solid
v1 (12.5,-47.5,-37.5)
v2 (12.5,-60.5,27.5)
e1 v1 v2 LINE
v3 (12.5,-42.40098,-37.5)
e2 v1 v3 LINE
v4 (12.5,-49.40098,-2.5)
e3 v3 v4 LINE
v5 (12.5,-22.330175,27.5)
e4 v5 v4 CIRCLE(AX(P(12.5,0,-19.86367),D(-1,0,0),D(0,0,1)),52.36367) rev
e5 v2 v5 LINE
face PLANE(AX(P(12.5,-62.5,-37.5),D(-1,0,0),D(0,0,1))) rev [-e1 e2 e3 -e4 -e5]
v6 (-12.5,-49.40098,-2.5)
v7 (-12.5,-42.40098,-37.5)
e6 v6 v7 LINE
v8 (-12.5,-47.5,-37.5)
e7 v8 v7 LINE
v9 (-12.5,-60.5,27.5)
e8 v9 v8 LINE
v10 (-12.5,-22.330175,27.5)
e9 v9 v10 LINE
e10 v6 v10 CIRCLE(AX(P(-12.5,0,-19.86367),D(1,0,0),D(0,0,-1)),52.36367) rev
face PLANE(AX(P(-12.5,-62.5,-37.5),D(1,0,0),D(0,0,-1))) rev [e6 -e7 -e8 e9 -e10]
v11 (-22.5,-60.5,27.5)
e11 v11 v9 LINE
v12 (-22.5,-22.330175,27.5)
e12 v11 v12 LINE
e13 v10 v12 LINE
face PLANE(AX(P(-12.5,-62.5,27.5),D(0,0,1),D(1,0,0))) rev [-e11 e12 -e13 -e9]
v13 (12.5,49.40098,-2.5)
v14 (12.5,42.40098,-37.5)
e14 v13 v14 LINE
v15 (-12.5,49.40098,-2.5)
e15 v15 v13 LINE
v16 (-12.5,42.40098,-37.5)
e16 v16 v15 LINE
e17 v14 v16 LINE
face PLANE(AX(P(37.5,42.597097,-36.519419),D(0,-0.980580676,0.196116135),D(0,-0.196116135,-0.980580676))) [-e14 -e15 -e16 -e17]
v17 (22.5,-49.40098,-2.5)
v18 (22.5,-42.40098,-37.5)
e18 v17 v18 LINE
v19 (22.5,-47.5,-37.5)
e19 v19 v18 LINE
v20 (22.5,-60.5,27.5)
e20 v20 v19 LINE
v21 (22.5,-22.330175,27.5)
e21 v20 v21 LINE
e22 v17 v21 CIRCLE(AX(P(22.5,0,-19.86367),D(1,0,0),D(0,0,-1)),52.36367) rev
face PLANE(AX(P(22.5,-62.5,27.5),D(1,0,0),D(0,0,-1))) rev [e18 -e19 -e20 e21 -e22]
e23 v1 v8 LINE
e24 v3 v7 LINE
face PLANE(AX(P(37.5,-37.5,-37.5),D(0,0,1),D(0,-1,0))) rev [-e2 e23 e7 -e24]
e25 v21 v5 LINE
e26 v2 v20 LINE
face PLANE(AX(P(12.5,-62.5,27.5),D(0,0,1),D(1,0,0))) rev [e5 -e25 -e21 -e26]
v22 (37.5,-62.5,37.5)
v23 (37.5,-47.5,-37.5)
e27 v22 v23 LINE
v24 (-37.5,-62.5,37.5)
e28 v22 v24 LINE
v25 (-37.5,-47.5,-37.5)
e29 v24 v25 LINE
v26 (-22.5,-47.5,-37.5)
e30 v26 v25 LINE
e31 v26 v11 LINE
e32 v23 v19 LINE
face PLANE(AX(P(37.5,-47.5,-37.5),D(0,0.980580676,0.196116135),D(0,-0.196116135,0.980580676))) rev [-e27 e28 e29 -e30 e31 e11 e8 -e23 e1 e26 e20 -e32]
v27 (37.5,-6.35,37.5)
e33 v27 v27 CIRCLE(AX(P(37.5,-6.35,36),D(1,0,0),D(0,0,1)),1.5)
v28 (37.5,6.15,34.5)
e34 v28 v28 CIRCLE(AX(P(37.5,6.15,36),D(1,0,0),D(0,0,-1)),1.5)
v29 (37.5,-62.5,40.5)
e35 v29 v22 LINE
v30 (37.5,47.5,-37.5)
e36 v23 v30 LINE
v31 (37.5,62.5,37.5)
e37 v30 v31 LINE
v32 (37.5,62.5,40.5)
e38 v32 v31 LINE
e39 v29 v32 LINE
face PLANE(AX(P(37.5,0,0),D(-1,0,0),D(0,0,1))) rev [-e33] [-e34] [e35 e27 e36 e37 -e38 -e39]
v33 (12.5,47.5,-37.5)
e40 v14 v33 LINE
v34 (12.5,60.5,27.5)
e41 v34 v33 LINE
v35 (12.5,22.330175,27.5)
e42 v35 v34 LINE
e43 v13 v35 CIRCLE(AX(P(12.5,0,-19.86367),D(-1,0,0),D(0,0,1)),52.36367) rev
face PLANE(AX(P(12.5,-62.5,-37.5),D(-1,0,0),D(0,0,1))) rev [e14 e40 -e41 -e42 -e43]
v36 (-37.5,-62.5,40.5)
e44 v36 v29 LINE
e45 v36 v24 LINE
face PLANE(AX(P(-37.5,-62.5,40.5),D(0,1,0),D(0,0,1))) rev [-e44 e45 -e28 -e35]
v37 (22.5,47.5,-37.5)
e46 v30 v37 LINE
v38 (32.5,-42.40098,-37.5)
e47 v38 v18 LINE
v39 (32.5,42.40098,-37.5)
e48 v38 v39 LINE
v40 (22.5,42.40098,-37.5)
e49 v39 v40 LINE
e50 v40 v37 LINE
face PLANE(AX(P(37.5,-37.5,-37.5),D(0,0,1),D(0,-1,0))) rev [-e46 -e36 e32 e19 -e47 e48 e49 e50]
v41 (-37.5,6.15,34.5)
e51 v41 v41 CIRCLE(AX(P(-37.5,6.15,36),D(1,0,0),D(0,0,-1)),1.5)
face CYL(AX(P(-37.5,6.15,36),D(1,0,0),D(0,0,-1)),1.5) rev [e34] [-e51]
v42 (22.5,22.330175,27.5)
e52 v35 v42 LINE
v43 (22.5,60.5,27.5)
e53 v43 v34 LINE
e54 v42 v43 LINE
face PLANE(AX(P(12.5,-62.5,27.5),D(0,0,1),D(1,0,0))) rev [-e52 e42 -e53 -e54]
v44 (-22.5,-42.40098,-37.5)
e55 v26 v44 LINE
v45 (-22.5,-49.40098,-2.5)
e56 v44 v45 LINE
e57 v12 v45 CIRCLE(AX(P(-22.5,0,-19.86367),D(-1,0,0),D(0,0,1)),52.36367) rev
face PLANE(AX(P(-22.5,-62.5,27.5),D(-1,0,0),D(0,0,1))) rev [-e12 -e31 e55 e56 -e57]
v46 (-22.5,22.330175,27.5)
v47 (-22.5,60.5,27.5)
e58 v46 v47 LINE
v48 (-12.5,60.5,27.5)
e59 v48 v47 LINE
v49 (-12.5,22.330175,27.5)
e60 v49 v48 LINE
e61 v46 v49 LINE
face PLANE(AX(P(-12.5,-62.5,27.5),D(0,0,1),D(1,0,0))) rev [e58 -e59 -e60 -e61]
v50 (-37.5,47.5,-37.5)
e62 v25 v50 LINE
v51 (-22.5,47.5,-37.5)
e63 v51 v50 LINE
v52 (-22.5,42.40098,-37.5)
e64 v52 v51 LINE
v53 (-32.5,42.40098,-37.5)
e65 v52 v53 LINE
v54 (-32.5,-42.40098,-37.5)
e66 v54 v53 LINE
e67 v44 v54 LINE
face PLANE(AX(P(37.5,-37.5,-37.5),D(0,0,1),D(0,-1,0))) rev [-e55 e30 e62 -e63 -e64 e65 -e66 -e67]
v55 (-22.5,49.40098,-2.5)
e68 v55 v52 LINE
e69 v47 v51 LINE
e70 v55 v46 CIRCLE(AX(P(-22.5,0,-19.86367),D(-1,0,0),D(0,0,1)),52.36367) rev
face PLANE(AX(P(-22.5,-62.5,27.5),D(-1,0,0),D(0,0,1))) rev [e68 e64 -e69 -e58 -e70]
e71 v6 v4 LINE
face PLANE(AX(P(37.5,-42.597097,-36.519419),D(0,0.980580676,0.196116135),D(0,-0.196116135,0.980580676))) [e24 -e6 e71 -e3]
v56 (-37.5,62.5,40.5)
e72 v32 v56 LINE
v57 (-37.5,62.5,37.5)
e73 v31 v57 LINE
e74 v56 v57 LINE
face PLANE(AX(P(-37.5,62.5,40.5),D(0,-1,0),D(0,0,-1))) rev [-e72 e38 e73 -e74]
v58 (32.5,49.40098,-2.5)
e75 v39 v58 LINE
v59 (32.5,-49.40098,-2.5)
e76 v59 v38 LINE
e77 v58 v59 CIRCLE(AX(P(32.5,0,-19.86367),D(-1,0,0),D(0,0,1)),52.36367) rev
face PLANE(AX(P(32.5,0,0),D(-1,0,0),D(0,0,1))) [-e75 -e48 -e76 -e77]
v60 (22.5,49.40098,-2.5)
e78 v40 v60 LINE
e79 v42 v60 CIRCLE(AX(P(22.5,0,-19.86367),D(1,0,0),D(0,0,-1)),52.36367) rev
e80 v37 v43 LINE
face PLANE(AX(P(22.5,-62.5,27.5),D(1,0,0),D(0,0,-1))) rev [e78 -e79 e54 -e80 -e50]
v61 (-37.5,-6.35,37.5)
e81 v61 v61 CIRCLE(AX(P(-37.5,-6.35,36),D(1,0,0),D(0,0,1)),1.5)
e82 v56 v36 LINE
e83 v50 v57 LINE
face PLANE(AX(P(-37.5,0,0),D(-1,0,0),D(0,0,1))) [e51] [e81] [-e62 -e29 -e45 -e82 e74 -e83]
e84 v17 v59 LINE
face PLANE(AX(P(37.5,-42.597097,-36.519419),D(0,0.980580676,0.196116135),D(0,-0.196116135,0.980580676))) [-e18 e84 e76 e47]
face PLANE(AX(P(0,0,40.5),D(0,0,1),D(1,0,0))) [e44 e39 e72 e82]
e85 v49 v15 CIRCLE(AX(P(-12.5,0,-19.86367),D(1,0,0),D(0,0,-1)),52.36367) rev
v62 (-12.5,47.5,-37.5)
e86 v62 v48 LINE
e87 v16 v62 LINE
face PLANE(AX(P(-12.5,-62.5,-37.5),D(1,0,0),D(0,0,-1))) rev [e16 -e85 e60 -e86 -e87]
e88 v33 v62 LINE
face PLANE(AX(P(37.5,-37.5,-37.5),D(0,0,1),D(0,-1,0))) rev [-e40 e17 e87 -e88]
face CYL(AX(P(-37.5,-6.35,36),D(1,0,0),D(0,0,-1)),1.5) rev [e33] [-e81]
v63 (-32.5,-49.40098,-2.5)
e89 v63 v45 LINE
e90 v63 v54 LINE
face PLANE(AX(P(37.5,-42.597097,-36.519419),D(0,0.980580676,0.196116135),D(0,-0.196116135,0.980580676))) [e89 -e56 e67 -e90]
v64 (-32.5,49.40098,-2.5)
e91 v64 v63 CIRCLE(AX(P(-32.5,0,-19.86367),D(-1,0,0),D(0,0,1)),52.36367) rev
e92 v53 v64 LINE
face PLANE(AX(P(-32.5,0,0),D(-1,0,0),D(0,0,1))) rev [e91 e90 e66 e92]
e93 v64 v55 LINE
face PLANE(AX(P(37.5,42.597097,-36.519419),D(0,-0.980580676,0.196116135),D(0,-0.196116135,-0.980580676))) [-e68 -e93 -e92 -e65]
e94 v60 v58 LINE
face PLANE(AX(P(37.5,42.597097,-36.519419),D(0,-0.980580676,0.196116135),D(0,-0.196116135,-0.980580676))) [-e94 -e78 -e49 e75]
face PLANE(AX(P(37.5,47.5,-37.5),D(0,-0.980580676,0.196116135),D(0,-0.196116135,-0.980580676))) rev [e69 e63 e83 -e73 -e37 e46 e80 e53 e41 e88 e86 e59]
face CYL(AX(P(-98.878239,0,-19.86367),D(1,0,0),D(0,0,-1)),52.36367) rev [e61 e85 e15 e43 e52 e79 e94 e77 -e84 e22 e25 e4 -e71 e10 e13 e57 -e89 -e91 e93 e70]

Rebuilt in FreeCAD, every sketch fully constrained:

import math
import FreeCAD as App
import Part
import Sketcher
from FreeCAD import Vector
Q = App.Units.Quantity


def faces_at(feature, points):
    """Names of the faces that lie closest to the given points."""
    faces = feature.Shape.Faces
    near = lambda p: min(range(len(faces)), key=lambda i: faces[i].distToShape(Part.Vertex(*p))[0])
    return sorted({f"Face{near(p) + 1}" for p in points})

doc = App.newDocument("Part")
body = doc.addObject("PartDesign::Body", "Body")

sketch1 = body.newObject("Sketcher::SketchObject", "Sketch")
sketch1.AttachmentSupport = (doc.getObject("YZ_Plane"), [""])
sketch1.MapMode = "FlatFace"
sketch1.addGeometry(Part.LineSegment(Vector(-62, 38, 0), Vector(-48, -38, 0)), False)
sketch1.addGeometry(Part.LineSegment(Vector(-48, -38, 0), Vector(48, -38, 0)), False)
sketch1.addGeometry(Part.LineSegment(Vector(48, -38, 0), Vector(62, 38, 0)), False)
sketch1.addGeometry(Part.LineSegment(Vector(62, 38, 0), Vector(-62, 38, 0)), False)
sketch1.addConstraint(Sketcher.Constraint("Coincident", 0, 2, 1, 1))
sketch1.addConstraint(Sketcher.Constraint("Coincident", 1, 2, 2, 1))
sketch1.addConstraint(Sketcher.Constraint("Coincident", 2, 2, 3, 1))
sketch1.addConstraint(Sketcher.Constraint("Coincident", 3, 2, 0, 1))
sketch1.addConstraint(Sketcher.Constraint("Horizontal", 1))
sketch1.addConstraint(Sketcher.Constraint("Horizontal", 3))
sketch1.addConstraint(Sketcher.Constraint("Equal", 0, 2))
sketch1.addConstraint(Sketcher.Constraint("DistanceX", 1, 1, 1, 2, Q("95 mm")))
sketch1.addConstraint(Sketcher.Constraint("DistanceX", 3, 2, 3, 1, Q("125 mm")))
sketch1.addConstraint(Sketcher.Constraint("DistanceY", 1, 2, 2, 2, Q("75 mm")))
sketch1.addConstraint(Sketcher.Constraint("DistanceX", 0, 2, -1, 1, Q("47.5 mm")))
sketch1.addConstraint(Sketcher.Constraint("DistanceY", 0, 2, -1, 1, Q("37.5 mm")))
pad1 = body.newObject("PartDesign::Pad", "Pad")
pad1.Profile = sketch1
pad1.Length = 75
pad1.Midplane = True
doc.recompute()

thickness = body.newObject("PartDesign::Thickness", "Thickness")
thickness.Base = (pad1, faces_at(pad1, [(0, 0, -37.5)]))
thickness.Value = 5
thickness.Reversed = True
thickness.Join = "Intersection"

sketch2 = body.newObject("Sketcher::SketchObject", "Sketch001")
sketch2.AttachmentSupport = (doc.getObject("YZ_Plane"), [""])
sketch2.MapMode = "FlatFace"
sketch2.AttachmentOffset = App.Placement(Vector(0, 0, 32.5), App.Rotation())
sketch2.addGeometry(Part.LineSegment(Vector(-49, -2, 0), Vector(-56, 32, 0)), False)
sketch2.addGeometry(Part.LineSegment(Vector(-56, 32, 0), Vector(0, 32, 0)), False)
sketch2.addGeometry(Part.ArcOfCircle(Part.Circle(Vector(0, -20, 0), Vector(0, 0, 1), 52), math.radians(90), math.radians(161)), False)
sketch2.addGeometry(Part.ArcOfCircle(Part.Circle(Vector(0, -20, 0), Vector(0, 0, 1), 52), math.radians(19), math.radians(90)), False)
sketch2.addGeometry(Part.LineSegment(Vector(0, 32, 0), Vector(56, 32, 0)), False)
sketch2.addGeometry(Part.LineSegment(Vector(56, 32, 0), Vector(49, -2, 0)), False)
sketch2.addConstraint(Sketcher.Constraint("Coincident", 0, 2, 1, 1))
sketch2.addConstraint(Sketcher.Constraint("Tangent", 1, 2, 2, 1))
sketch2.addConstraint(Sketcher.Constraint("Coincident", 2, 2, 0, 1))
sketch2.addConstraint(Sketcher.Constraint("Tangent", 3, 2, 4, 1))
sketch2.addConstraint(Sketcher.Constraint("Coincident", 4, 2, 5, 1))
sketch2.addConstraint(Sketcher.Constraint("Coincident", 5, 2, 3, 1))
sketch2.addConstraint(Sketcher.Constraint("Horizontal", 1))
sketch2.addConstraint(Sketcher.Constraint("Horizontal", 4))
sketch2.addConstraint(Sketcher.Constraint("Coincident", 3, 3, 2, 3))
sketch2.addConstraint(Sketcher.Constraint("Equal", 2, 3))
sketch2.addConstraint(Sketcher.Constraint("Symmetric", 2, 2, 5, 2, -2))
sketch2.addConstraint(Sketcher.Constraint("Equal", 1, 4))
sketch2.addConstraint(Sketcher.Constraint("DistanceX", 0, 2, 2, 2, Q("7 mm")))
sketch2.addConstraint(Sketcher.Constraint("DistanceY", 2, 2, 0, 2, Q("35 mm")))
sketch2.addConstraint(Sketcher.Constraint("DistanceY", -1, 1, 0, 2, Q("32.5 mm")))
sketch2.addConstraint(Sketcher.Constraint("Radius", 2, Q("52.36367 mm")))
pad2 = body.newObject("PartDesign::Pad", "Pad001")
pad2.Profile = sketch2
pad2.Length = 65
pad2.Reversed = True

sketch3 = body.newObject("Sketcher::SketchObject", "Sketch002")
sketch3.AttachmentSupport = (doc.getObject("XZ_Plane"), [""])
sketch3.MapMode = "FlatFace"
sketch3.addGeometry(Part.LineSegment(Vector(-22, -38, 0), Vector(-22, 28, 0)), False)
sketch3.addGeometry(Part.LineSegment(Vector(-22, 28, 0), Vector(-12, 28, 0)), False)
sketch3.addGeometry(Part.LineSegment(Vector(-12, 28, 0), Vector(-12, -38, 0)), False)
sketch3.addGeometry(Part.LineSegment(Vector(-12, -38, 0), Vector(-22, -38, 0)), False)
sketch3.addGeometry(Part.LineSegment(Vector(12, -38, 0), Vector(12, 28, 0)), False)
sketch3.addGeometry(Part.LineSegment(Vector(12, 28, 0), Vector(22, 28, 0)), False)
sketch3.addGeometry(Part.LineSegment(Vector(22, 28, 0), Vector(22, -38, 0)), False)
sketch3.addGeometry(Part.LineSegment(Vector(22, -38, 0), Vector(12, -38, 0)), False)
sketch3.addConstraint(Sketcher.Constraint("Coincident", 0, 2, 1, 1))
sketch3.addConstraint(Sketcher.Constraint("Coincident", 1, 2, 2, 1))
sketch3.addConstraint(Sketcher.Constraint("Coincident", 2, 2, 3, 1))
sketch3.addConstraint(Sketcher.Constraint("Coincident", 3, 2, 0, 1))
sketch3.addConstraint(Sketcher.Constraint("Coincident", 4, 2, 5, 1))
sketch3.addConstraint(Sketcher.Constraint("Coincident", 5, 2, 6, 1))
sketch3.addConstraint(Sketcher.Constraint("Coincident", 6, 2, 7, 1))
sketch3.addConstraint(Sketcher.Constraint("Coincident", 7, 2, 4, 1))
sketch3.addConstraint(Sketcher.Constraint("Vertical", 0))
sketch3.addConstraint(Sketcher.Constraint("Horizontal", 1))
sketch3.addConstraint(Sketcher.Constraint("Vertical", 2))
sketch3.addConstraint(Sketcher.Constraint("Horizontal", 3))
sketch3.addConstraint(Sketcher.Constraint("Vertical", 4))
sketch3.addConstraint(Sketcher.Constraint("Horizontal", 5))
sketch3.addConstraint(Sketcher.Constraint("Vertical", 6))
sketch3.addConstraint(Sketcher.Constraint("Horizontal", 7))
sketch3.addConstraint(Sketcher.Constraint("Symmetric", 1, 2, 4, 2, -2))
sketch3.addConstraint(Sketcher.Constraint("Symmetric", 3, 2, 6, 2, -2))
sketch3.addConstraint(Sketcher.Constraint("DistanceX", 1, 1, 1, 2, Q("10 mm")))
sketch3.addConstraint(Sketcher.Constraint("DistanceY", 0, 1, 0, 2, Q("65 mm")))
sketch3.addConstraint(Sketcher.Constraint("DistanceX", 1, 2, 4, 2, Q("25 mm")))
sketch3.addConstraint(Sketcher.Constraint("DistanceY", -1, 1, 0, 2, Q("27.5 mm")))
pocket1 = body.newObject("PartDesign::Pocket", "Pocket")
pocket1.Profile = sketch3
pocket1.Type = "ThroughAll"
pocket1.Midplane = True

sketch4 = body.newObject("Sketcher::SketchObject", "Sketch003")
sketch4.AttachmentSupport = (doc.getObject("XY_Plane"), [""])
sketch4.MapMode = "FlatFace"
sketch4.AttachmentOffset = App.Placement(Vector(0, 0, 37.5), App.Rotation())
sketch4.addGeometry(Part.LineSegment(Vector(-38, 62, 0), Vector(-38, -62, 0)), False)
sketch4.addGeometry(Part.LineSegment(Vector(-38, -62, 0), Vector(38, -62, 0)), False)
sketch4.addGeometry(Part.LineSegment(Vector(38, -62, 0), Vector(38, 62, 0)), False)
sketch4.addGeometry(Part.LineSegment(Vector(38, 62, 0), Vector(-38, 62, 0)), False)
sketch4.addConstraint(Sketcher.Constraint("Coincident", 0, 2, 1, 1))
sketch4.addConstraint(Sketcher.Constraint("Coincident", 1, 2, 2, 1))
sketch4.addConstraint(Sketcher.Constraint("Coincident", 2, 2, 3, 1))
sketch4.addConstraint(Sketcher.Constraint("Coincident", 3, 2, 0, 1))
sketch4.addConstraint(Sketcher.Constraint("Vertical", 0))
sketch4.addConstraint(Sketcher.Constraint("Horizontal", 1))
sketch4.addConstraint(Sketcher.Constraint("Vertical", 2))
sketch4.addConstraint(Sketcher.Constraint("Horizontal", 3))
sketch4.addConstraint(Sketcher.Constraint("Symmetric", 0, 2, 2, 2, -1, 1))
sketch4.addConstraint(Sketcher.Constraint("DistanceX", 1, 1, 1, 2, Q("75 mm")))
sketch4.addConstraint(Sketcher.Constraint("DistanceY", 0, 2, 0, 1, Q("125 mm")))
pad3 = body.newObject("PartDesign::Pad", "Pad002")
pad3.Profile = sketch4
pad3.Length = 3

sketch5 = body.newObject("Sketcher::SketchObject", "Sketch004")
sketch5.AttachmentSupport = (doc.getObject("YZ_Plane"), [""])
sketch5.MapMode = "FlatFace"
sketch5.AttachmentOffset = App.Placement(Vector(0, 0, 37.5), App.Rotation())
sketch5.addGeometry(Part.Circle(Vector(6.2, 36, 0), Vector(0, 0, 1), 1.5), False)
sketch5.addGeometry(Part.Circle(Vector(-6.3, 36, 0), Vector(0, 0, 1), 1.5), False)
sketch5.addConstraint(Sketcher.Constraint("Equal", 0, 1))
sketch5.addConstraint(Sketcher.Constraint("Horizontal", 0, 3, 1, 3))
sketch5.addConstraint(Sketcher.Constraint("Diameter", 0, Q("3 mm")))
sketch5.addConstraint(Sketcher.Constraint("DistanceY", -1, 1, 0, 3, Q("36 mm")))
sketch5.addConstraint(Sketcher.Constraint("DistanceX", 1, 3, 0, 3, Q("12.5 mm")))
sketch5.addConstraint(Sketcher.Constraint("DistanceX", -1, 1, 0, 3, Q("6.15 mm")))
pocket2 = body.newObject("PartDesign::Pocket", "Pocket001")
pocket2.Profile = sketch5
pocket2.Type = "ThroughAll"

doc.recompute()
